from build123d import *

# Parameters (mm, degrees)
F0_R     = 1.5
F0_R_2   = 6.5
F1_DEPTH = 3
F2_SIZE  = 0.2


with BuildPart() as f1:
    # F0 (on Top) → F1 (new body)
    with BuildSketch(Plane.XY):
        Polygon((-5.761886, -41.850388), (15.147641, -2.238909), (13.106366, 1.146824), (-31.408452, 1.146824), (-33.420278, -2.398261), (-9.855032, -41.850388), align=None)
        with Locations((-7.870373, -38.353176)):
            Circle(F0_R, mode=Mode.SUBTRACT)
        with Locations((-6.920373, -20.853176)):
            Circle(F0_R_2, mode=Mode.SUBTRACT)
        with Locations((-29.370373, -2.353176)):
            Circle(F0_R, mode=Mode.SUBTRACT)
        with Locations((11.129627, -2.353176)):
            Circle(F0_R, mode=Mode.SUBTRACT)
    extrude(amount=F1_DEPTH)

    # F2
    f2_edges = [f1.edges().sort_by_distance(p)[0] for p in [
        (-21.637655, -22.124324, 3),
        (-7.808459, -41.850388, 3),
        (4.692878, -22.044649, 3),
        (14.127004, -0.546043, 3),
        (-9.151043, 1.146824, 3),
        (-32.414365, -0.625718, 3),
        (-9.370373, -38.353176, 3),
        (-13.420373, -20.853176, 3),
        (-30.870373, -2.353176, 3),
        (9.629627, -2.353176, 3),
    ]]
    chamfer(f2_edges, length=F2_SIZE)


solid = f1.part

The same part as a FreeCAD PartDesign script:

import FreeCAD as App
import Part
import Sketcher
from FreeCAD import Vector
Q = App.Units.Quantity


def edges_at(feature, points):
    """Names of the edges that pass closest to the given points."""
    edges = feature.Shape.Edges
    near = lambda p: min(range(len(edges)), key=lambda i: edges[i].distToShape(Part.Vertex(*p))[0])
    return sorted({f"Edge{near(p) + 1}" for p in points})


def add_polygon(sketch, points):
    """Adds a closed chain of lines whose ends are joined by coincident constraints."""
    first, n = sketch.GeometryCount, len(points)
    for a, b in zip(points, points[1:] + points[:1]):
        sketch.addGeometry(Part.LineSegment(App.Vector(*a, 0), App.Vector(*b, 0)), False)
    for i in range(n):
        sketch.addConstraint(Sketcher.Constraint("Coincident", first + i, 2, first + (i + 1) % n, 1))

doc = App.newDocument("Part")
params = doc.addObject("Spreadsheet::Sheet", "Params")
for row, (alias, value) in enumerate([
    ("sketch1_diameter", "3 mm"),
    ("sketch1_diameter2", "13 mm"),
    ("pad1_length", "3 mm"),
    ("chamfer_size", "0.2 mm"),
], start=1):
    params.set(f"A{row}", alias)
    params.set(f"B{row}", "=" + value)
    params.setAlias(f"B{row}", alias)

body = doc.addObject("PartDesign::Body", "Body")

# Sketch on XY plane
sketch1 = body.newObject("Sketcher::SketchObject", "Sketch")
sketch1.AttachmentSupport = (doc.getObject("XY_Plane"), [""])
sketch1.MapMode = "FlatFace"
add_polygon(sketch1, [(-5.8, -41.9), (15.1, -2.2), (13.1, 1.1), (-31.4, 1.1), (-33.4, -2.4), (-9.9, -41.9)])  # lines 0-5
sketch1.addGeometry(Part.Circle(Vector(-7.9, -38.4, 0), Vector(0, 0, 1), 1.5), False)  # 6
sketch1.addGeometry(Part.Circle(Vector(-6.9, -20.9, 0), Vector(0, 0, 1), 6.5), False)  # 7
sketch1.addGeometry(Part.Circle(Vector(-29.4, -2.4, 0), Vector(0, 0, 1), 1.5), False)  # 8
sketch1.addGeometry(Part.Circle(Vector(11.1, -2.4, 0), Vector(0, 0, 1), 1.5), False)  # 9
sketch1.addConstraint([
    Sketcher.Constraint("Horizontal", 2),
    Sketcher.Constraint("Horizontal", 5),
    Sketcher.Constraint("Equal", 6, 8),
    Sketcher.Constraint("Equal", 8, 9),
    Sketcher.Constraint("Horizontal", 8, 3, 9, 3),
    Sketcher.Constraint("Diameter", 6, Q("3 mm")),
    Sketcher.Constraint("Diameter", 7, Q("13 mm")),
    Sketcher.Constraint("DistanceY", 6, 3, 8, 3, Q("36 mm")),
    Sketcher.Constraint("DistanceX", 6, 3, 9, 3, Q("19 mm")),
    Sketcher.Constraint("DistanceY", 7, 3, 1, 2, Q("22 mm")),
    Sketcher.Constraint("DistanceY", 6, 3, 7, 3, Q("17.5 mm")),
    Sketcher.Constraint("DistanceX", 8, 3, 6, 3, Q("21.5 mm")),
    Sketcher.Constraint("DistanceX", 6, 3, 7, 3, Q("0.95 mm")),
    Sketcher.Constraint("Distance", 0, Q("44.79149 mm")),
    Sketcher.Constraint("Distance", 1, Q("3.953478 mm")),
    Sketcher.Constraint("Distance", 3, Q("4.076159 mm")),
    Sketcher.Constraint("Distance", 4, Q("45.954229 mm")),
    Sketcher.Constraint("DistanceX", 2, 2, 2, 1, Q("44.514818 mm")),
    Sketcher.Constraint("DistanceX", 5, 1, 5, 2, Q("4.093146 mm")),
    Sketcher.Constraint("DistanceX", -1, 1, 0, 2, Q("15.147641 mm")),
    Sketcher.Constraint("DistanceY", 0, 2, -1, 1, Q("2.238909 mm")),
    Sketcher.Constraint("DistanceX", 3, 2, -1, 1, Q("33.420278 mm")),
    Sketcher.Constraint("DistanceY", 3, 2, -1, 1, Q("2.398261 mm")),
    Sketcher.Constraint("DistanceX", 9, 3, 1, 2, Q("1.976739 mm")),
])
sketch1.setExpression("Constraints[11]", "Params.sketch1_diameter")
sketch1.setExpression("Constraints[12]", "Params.sketch1_diameter2")
pad1 = body.newObject("PartDesign::Pad", "Pad")
pad1.Profile = sketch1
pad1.setExpression("Length", "Params.pad1_length")
doc.recompute()

chamfer = body.newObject("PartDesign::Chamfer", "Chamfer")
chamfer.Base = (pad1, edges_at(pad1, [
    (-21.638, -22.124, 3),
    (-7.808, -41.85, 3),
    (4.693, -22.045, 3),
    (14.127, -0.546, 3),
    (-9.151, 1.147, 3),
    (-32.414, -0.626, 3),
    (-9.37, -38.353, 3),
    (-13.42, -20.853, 3),
    (-30.87, -2.353, 3),
    (9.63, -2.353, 3),
]))
chamfer.setExpression("Size", "Params.chamfer_size")

doc.recompute()
